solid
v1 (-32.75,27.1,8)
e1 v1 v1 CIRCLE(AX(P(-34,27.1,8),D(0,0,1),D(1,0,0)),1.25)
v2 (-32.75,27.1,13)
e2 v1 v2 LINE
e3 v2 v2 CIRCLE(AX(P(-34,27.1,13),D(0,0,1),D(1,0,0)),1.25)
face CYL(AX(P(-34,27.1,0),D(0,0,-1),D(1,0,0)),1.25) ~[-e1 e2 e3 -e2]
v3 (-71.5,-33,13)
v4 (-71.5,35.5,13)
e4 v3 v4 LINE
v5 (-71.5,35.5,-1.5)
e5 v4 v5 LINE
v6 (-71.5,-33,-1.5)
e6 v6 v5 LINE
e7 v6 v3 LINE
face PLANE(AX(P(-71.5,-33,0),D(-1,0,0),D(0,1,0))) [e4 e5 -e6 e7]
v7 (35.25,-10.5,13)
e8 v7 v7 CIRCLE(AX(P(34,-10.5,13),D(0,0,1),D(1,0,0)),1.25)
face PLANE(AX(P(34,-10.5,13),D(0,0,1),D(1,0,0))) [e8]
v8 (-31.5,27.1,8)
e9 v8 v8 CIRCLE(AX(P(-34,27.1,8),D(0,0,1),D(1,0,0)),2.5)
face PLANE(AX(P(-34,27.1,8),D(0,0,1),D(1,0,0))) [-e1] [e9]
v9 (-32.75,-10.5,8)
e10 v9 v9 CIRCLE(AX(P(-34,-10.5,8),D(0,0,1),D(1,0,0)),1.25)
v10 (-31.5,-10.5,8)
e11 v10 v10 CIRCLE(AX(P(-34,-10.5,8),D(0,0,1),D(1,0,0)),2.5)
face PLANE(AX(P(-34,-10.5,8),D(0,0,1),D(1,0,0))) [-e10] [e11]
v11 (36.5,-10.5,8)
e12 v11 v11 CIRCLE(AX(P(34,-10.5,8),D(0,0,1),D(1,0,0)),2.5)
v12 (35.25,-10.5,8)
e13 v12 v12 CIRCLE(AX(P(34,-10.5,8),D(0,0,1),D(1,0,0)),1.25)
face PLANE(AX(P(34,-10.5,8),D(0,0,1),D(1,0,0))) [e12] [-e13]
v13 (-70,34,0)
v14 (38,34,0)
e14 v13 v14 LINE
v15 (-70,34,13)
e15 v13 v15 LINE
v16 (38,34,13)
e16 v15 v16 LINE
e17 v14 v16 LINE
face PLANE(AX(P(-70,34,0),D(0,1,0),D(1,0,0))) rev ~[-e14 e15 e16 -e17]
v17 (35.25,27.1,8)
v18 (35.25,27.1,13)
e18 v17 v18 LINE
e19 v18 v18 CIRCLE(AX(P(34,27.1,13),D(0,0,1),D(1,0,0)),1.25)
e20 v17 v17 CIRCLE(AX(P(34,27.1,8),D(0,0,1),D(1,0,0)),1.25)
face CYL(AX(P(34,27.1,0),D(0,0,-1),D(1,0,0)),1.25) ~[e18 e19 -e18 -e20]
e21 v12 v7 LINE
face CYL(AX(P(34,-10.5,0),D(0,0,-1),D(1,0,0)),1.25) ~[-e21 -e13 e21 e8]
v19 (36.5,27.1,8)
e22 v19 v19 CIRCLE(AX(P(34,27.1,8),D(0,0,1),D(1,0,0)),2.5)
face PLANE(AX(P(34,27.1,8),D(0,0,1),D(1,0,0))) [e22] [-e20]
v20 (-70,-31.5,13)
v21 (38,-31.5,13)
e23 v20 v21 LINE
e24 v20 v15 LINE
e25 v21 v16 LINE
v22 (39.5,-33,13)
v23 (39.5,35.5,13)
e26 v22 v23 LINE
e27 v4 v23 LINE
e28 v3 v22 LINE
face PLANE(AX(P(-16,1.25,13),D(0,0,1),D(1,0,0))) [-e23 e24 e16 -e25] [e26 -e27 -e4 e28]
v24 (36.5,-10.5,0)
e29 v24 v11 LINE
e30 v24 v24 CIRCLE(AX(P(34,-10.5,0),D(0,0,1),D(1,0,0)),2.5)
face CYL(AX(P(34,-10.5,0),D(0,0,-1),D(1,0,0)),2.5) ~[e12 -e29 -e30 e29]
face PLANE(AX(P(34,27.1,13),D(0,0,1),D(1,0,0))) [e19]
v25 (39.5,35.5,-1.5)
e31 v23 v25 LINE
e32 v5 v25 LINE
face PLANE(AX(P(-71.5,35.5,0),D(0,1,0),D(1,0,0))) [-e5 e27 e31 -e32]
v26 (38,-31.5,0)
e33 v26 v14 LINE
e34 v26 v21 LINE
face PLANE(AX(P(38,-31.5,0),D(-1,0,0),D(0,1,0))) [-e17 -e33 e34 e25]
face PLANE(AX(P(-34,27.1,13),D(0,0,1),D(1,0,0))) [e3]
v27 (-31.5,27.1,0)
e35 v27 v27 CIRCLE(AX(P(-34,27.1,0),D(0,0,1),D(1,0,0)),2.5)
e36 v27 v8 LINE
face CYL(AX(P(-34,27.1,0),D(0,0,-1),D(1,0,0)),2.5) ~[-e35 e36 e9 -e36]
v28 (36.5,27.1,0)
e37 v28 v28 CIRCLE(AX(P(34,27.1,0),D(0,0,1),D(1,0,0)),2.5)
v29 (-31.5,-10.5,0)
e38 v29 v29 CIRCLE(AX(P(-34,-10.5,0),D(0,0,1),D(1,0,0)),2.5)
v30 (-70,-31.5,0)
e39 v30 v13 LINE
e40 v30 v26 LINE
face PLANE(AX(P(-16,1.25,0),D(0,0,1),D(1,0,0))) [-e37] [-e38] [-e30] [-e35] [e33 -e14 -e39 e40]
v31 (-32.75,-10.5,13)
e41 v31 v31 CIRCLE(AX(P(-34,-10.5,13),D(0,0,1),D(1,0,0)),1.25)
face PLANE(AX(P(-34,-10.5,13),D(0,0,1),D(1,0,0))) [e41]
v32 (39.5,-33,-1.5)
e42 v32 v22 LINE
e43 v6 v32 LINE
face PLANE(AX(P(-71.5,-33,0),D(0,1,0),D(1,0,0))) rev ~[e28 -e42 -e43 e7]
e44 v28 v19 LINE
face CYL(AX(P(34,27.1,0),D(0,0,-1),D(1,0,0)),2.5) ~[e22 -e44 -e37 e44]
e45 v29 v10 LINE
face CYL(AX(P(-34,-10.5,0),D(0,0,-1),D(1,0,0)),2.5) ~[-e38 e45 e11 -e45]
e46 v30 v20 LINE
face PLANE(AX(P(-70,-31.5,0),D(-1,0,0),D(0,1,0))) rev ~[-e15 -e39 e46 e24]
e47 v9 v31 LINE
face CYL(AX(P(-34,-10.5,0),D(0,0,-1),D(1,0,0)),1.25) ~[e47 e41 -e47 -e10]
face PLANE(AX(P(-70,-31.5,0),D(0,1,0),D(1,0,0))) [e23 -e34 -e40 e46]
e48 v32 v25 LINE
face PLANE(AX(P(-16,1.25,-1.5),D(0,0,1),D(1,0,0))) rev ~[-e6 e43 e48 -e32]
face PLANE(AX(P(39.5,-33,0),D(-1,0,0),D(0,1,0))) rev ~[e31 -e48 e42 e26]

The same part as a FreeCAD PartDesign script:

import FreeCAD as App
import Part
import Sketcher

V = App.Vector
Q = App.Units.Quantity

doc = App.newDocument("Part")
body = doc.addObject("PartDesign::Body", "Body")

# Sketch on XY plane
sketch1 = body.newObject("Sketcher::SketchObject", "Sketch")
sketch1.AttachmentSupport = (doc.getObject("XY_Plane"), [""])
sketch1.MapMode = "FlatFace"
sketch1.addGeometry(Part.LineSegment(V(-72, 36, 0), V(-72, -33, 0)), False)
sketch1.addGeometry(Part.LineSegment(V(-72, -33, 0), V(40, -33, 0)), False)
sketch1.addGeometry(Part.LineSegment(V(40, -33, 0), V(40, 36, 0)), False)
sketch1.addGeometry(Part.LineSegment(V(40, 36, 0), V(-72, 36, 0)), False)
sketch1.addConstraint(Sketcher.Constraint("Coincident", 0, 2, 1, 1))
sketch1.addConstraint(Sketcher.Constraint("Coincident", 1, 2, 2, 1))
sketch1.addConstraint(Sketcher.Constraint("Coincident", 2, 2, 3, 1))
sketch1.addConstraint(Sketcher.Constraint("Coincident", 3, 2, 0, 1))
sketch1.addConstraint(Sketcher.Constraint("Vertical", 0))
sketch1.addConstraint(Sketcher.Constraint("Horizontal", 1))
sketch1.addConstraint(Sketcher.Constraint("Vertical", 2))
sketch1.addConstraint(Sketcher.Constraint("Horizontal", 3))
sketch1.addConstraint(Sketcher.Constraint("DistanceX", 1, 1, 1, 2, Q("111 mm")))
sketch1.addConstraint(Sketcher.Constraint("DistanceY", 0, 2, 0, 1, Q("68.5 mm")))
sketch1.addConstraint(Sketcher.Constraint("DistanceY", 0, 2, -1, 1, Q("33 mm")))
sketch1.addConstraint(Sketcher.Constraint("DistanceX", 0, 2, -1, 1, Q("71.5 mm")))
pad1 = body.newObject("PartDesign::Pad", "Pad")
pad1.Profile = sketch1
pad1.Length = 1.5
pad1.Reversed = True

# Sketch on XY plane
sketch2 = body.newObject("Sketcher::SketchObject", "Sketch001")
sketch2.AttachmentSupport = (doc.getObject("XY_Plane"), [""])
sketch2.MapMode = "FlatFace"
sketch2.addGeometry(Part.LineSegment(V(-71.5, 35.5, 0), V(-71.5, -33, 0)), False)
sketch2.addGeometry(Part.LineSegment(V(-71.5, -33, 0), V(39.5, -33, 0)), False)
sketch2.addGeometry(Part.LineSegment(V(39.5, -33, 0), V(39.5, 35.5, 0)), False)
sketch2.addGeometry(Part.LineSegment(V(39.5, 35.5, 0), V(-71.5, 35.5, 0)), False)
sketch2.addGeometry(Part.LineSegment(V(38, -31.5, 0), V(-70, -31.5, 0)), False)
sketch2.addGeometry(Part.LineSegment(V(-70, -31.5, 0), V(-70, 34, 0)), False)
sketch2.addGeometry(Part.LineSegment(V(-70, 34, 0), V(38, 34, 0)), False)
sketch2.addGeometry(Part.LineSegment(V(38, 34, 0), V(38, -31.5, 0)), False)
sketch2.addGeometry(Part.Circle(V(-34, 27.1, 0), V(0, 0, 1), 1.2), False)
sketch2.addGeometry(Part.Circle(V(34, 27.1, 0), V(0, 0, 1), 1.2), False)
sketch2.addGeometry(Part.Circle(V(34, -10.5, 0), V(0, 0, 1), 1.2), False)
sketch2.addGeometry(Part.Circle(V(-34, -10.5, 0), V(0, 0, 1), 1.2), False)
sketch2.addConstraint(Sketcher.Constraint("Coincident", 0, 2, 1, 1))
sketch2.addConstraint(Sketcher.Constraint("Coincident", 1, 2, 2, 1))
sketch2.addConstraint(Sketcher.Constraint("Coincident", 2, 2, 3, 1))
sketch2.addConstraint(Sketcher.Constraint("Coincident", 3, 2, 0, 1))
sketch2.addConstraint(Sketcher.Constraint("Coincident", 4, 2, 5, 1))
sketch2.addConstraint(Sketcher.Constraint("Coincident", 5, 2, 6, 1))
sketch2.addConstraint(Sketcher.Constraint("Coincident", 6, 2, 7, 1))
sketch2.addConstraint(Sketcher.Constraint("Coincident", 7, 2, 4, 1))
sketch2.addConstraint(Sketcher.Constraint("Vertical", 0))
sketch2.addConstraint(Sketcher.Constraint("Horizontal", 1))
sketch2.addConstraint(Sketcher.Constraint("Vertical", 2))
sketch2.addConstraint(Sketcher.Constraint("Horizontal", 3))
sketch2.addConstraint(Sketcher.Constraint("Horizontal", 4))
sketch2.addConstraint(Sketcher.Constraint("Vertical", 5))
sketch2.addConstraint(Sketcher.Constraint("Horizontal", 6))
sketch2.addConstraint(Sketcher.Constraint("Vertical", 7))
sketch2.addConstraint(Sketcher.Constraint("Equal", 8, 9))
sketch2.addConstraint(Sketcher.Constraint("Equal", 9, 10))
sketch2.addConstraint(Sketcher.Constraint("Equal", 10, 11))
sketch2.addConstraint(Sketcher.Constraint("Symmetric", 8, 3, 9, 3, -2))
sketch2.addConstraint(Sketcher.Constraint("Symmetric", 10, 3, 11, 3, -2))
sketch2.addConstraint(Sketcher.Constraint("Vertical", 9, 3, 10, 3))
sketch2.addConstraint(Sketcher.Constraint("Diameter", 8, Q("2.5 mm")))
sketch2.addConstraint(Sketcher.Constraint("DistanceX", 1, 1, 1, 2, Q("111 mm")))
sketch2.addConstraint(Sketcher.Constraint("DistanceX", 4, 2, 4, 1, Q("108 mm")))
sketch2.addConstraint(Sketcher.Constraint("DistanceY", 0, 2, 0, 1, Q("68.5 mm")))
sketch2.addConstraint(Sketcher.Constraint("DistanceY", 5, 1, 5, 2, Q("65.5 mm")))
sketch2.addConstraint(Sketcher.Constraint("DistanceX", 8, 3, -1, 1, Q("34 mm")))
sketch2.addConstraint(Sketcher.Constraint("DistanceY", 0, 2, -1, 1, Q("33 mm")))
sketch2.addConstraint(Sketcher.Constraint("DistanceX", 4, 2, -1, 1, Q("70 mm")))
sketch2.addConstraint(Sketcher.Constraint("DistanceY", -1, 1, 5, 2, Q("34 mm")))
sketch2.addConstraint(Sketcher.Constraint("DistanceY", 10, 3, 2, 2, Q("46 mm")))
sketch2.addConstraint(Sketcher.Constraint("DistanceY", -1, 1, 8, 3, Q("27.1 mm")))
sketch2.addConstraint(Sketcher.Constraint("DistanceX", 0, 2, -1, 1, Q("71.5 mm")))
pad2 = body.newObject("PartDesign::Pad", "Pad001")
pad2.Profile = sketch2
pad2.Length = 13

# Sketch on XY plane
sketch3 = body.newObject("Sketcher::SketchObject", "Sketch002")
sketch3.AttachmentSupport = (doc.getObject("XY_Plane"), [""])
sketch3.MapMode = "FlatFace"
sketch3.addGeometry(Part.Circle(V(-34, 27.1, 0), V(0, 0, 1), 2.5), False)
sketch3.addGeometry(Part.Circle(V(-34, 27.1, 0), V(0, 0, 1), 1.2), False)
sketch3.addGeometry(Part.Circle(V(-34, -10.5, 0), V(0, 0, 1), 2.5), False)
sketch3.addGeometry(Part.Circle(V(-34, -10.5, 0), V(0, 0, 1), 1.2), False)
sketch3.addGeometry(Part.Circle(V(34, 27.1, 0), V(0, 0, 1), 2.5), False)
sketch3.addGeometry(Part.Circle(V(34, 27.1, 0), V(0, 0, 1), 1.2), False)
sketch3.addGeometry(Part.Circle(V(34, -10.5, 0), V(0, 0, 1), 2.5), False)
sketch3.addGeometry(Part.Circle(V(34, -10.5, 0), V(0, 0, 1), 1.2), False)
sketch3.addConstraint(Sketcher.Constraint("Coincident", 1, 3, 0, 3))
sketch3.addConstraint(Sketcher.Constraint("Coincident", 3, 3, 2, 3))
sketch3.addConstraint(Sketcher.Constraint("Coincident", 5, 3, 4, 3))
sketch3.addConstraint(Sketcher.Constraint("Coincident", 7, 3, 6, 3))
sketch3.addConstraint(Sketcher.Constraint("Equal", 0, 2))
sketch3.addConstraint(Sketcher.Constraint("Equal", 1, 3))
sketch3.addConstraint(Sketcher.Constraint("Equal", 2, 4))
sketch3.addConstraint(Sketcher.Constraint("Equal", 3, 5))
sketch3.addConstraint(Sketcher.Constraint("Equal", 4, 6))
sketch3.addConstraint(Sketcher.Constraint("Equal", 5, 7))
sketch3.addConstraint(Sketcher.Constraint("Symmetric", 0, 3, 4, 3, -2))
sketch3.addConstraint(Sketcher.Constraint("Symmetric", 2, 3, 6, 3, -2))
sketch3.addConstraint(Sketcher.Constraint("Vertical", 1, 3, 2, 3))
sketch3.addConstraint(Sketcher.Constraint("Diameter", 0, Q("5 mm")))
sketch3.addConstraint(Sketcher.Constraint("Diameter", 1, Q("2.5 mm")))
sketch3.addConstraint(Sketcher.Constraint("DistanceX", 0, 3, -1, 1, Q("34 mm")))
sketch3.addConstraint(Sketcher.Constraint("DistanceY", -1, 1, 0, 3, Q("27.1 mm")))
sketch3.addConstraint(Sketcher.Constraint("DistanceY", 2, 3, -1, 1, Q("10.5 mm")))
pad3 = body.newObject("PartDesign::Pad", "Pad002")
pad3.Profile = sketch3
pad3.Length = 8

doc.recompute()
